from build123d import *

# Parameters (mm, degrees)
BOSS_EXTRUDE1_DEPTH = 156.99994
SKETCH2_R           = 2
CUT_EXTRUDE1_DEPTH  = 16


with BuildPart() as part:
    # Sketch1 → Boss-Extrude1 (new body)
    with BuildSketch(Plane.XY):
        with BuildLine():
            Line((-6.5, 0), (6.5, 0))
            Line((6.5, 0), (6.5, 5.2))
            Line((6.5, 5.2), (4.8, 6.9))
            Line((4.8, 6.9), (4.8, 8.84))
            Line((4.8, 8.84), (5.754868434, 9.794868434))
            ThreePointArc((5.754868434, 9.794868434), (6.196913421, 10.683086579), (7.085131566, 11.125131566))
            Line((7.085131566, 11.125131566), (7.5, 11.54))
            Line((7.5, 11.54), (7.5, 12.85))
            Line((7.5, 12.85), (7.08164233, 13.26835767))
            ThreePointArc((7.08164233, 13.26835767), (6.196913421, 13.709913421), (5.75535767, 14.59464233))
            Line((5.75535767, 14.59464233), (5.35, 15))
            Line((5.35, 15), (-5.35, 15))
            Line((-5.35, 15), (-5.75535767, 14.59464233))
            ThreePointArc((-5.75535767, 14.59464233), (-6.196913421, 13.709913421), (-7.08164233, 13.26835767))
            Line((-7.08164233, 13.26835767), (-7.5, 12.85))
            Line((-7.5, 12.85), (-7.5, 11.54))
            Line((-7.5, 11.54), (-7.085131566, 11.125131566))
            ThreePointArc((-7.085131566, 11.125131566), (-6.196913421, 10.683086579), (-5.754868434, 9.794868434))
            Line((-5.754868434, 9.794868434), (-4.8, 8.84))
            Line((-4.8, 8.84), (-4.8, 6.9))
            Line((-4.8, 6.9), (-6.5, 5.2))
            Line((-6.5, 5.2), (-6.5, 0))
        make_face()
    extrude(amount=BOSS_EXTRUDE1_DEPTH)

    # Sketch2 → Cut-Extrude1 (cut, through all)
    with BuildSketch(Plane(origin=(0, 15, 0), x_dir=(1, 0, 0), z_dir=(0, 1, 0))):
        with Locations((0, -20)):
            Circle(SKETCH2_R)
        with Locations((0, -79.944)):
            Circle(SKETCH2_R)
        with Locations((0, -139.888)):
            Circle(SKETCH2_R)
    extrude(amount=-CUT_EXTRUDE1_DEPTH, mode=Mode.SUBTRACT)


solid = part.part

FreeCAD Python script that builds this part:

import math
import FreeCAD as App
import Part
import Sketcher
Q = App.Units.Quantity

doc = App.newDocument("Part")
body = doc.addObject("PartDesign::Body", "Body")

sketch1 = body.newObject("Sketcher::SketchObject", "Sketch")
sketch1.AttachmentSupport = (doc.getObject("XY_Plane"), [""])
sketch1.MapMode = "FlatFace"
sketch1.addGeometry([
    Part.LineSegment(App.Vector(-6.5, 0, 0), App.Vector(6.5, 0, 0)),
    Part.LineSegment(App.Vector(6.5, 0, 0), App.Vector(6.5, 5.2, 0)),
    Part.LineSegment(App.Vector(6.5, 5.2, 0), App.Vector(4.8, 6.9, 0)),
    Part.LineSegment(App.Vector(4.8, 6.9, 0), App.Vector(4.8, 8.8, 0)),
    Part.LineSegment(App.Vector(4.8, 8.8, 0), App.Vector(5.8, 9.8, 0)),
    Part.ArcOfCircle(Part.Circle(App.Vector(7.3, 9.6, 0), App.Vector(0, 0, 1), 1.6), math.radians(98), math.radians(172)),
    Part.LineSegment(App.Vector(7.1, 11.1, 0), App.Vector(7.5, 11.5, 0)),
    Part.LineSegment(App.Vector(7.5, 11.5, 0), App.Vector(7.5, 12.8, 0)),
    Part.LineSegment(App.Vector(7.5, 12.8, 0), App.Vector(7.1, 13.3, 0)),
    Part.ArcOfCircle(Part.Circle(App.Vector(7.3, 14.8, 0), App.Vector(0, 0, 1), 1.6), math.radians(-172), math.radians(-98)),
    Part.LineSegment(App.Vector(5.8, 14.6, 0), App.Vector(5.3, 15, 0)),
    Part.LineSegment(App.Vector(5.3, 15, 0), App.Vector(-5.3, 15, 0)),
    Part.LineSegment(App.Vector(-5.3, 15, 0), App.Vector(-5.8, 14.6, 0)),
    Part.ArcOfCircle(Part.Circle(App.Vector(-7.3, 14.8, 0), App.Vector(0, 0, 1), 1.6), math.radians(-82), math.radians(-8)),
    Part.LineSegment(App.Vector(-7.1, 13.3, 0), App.Vector(-7.5, 12.8, 0)),
    Part.LineSegment(App.Vector(-7.5, 12.8, 0), App.Vector(-7.5, 11.5, 0)),
    Part.LineSegment(App.Vector(-7.5, 11.5, 0), App.Vector(-7.1, 11.1, 0)),
    Part.ArcOfCircle(Part.Circle(App.Vector(-7.3, 9.6, 0), App.Vector(0, 0, 1), 1.6), math.radians(8), math.radians(82)),
    Part.LineSegment(App.Vector(-5.8, 9.8, 0), App.Vector(-4.8, 8.8, 0)),
    Part.LineSegment(App.Vector(-4.8, 8.8, 0), App.Vector(-4.8, 6.9, 0)),
    Part.LineSegment(App.Vector(-4.8, 6.9, 0), App.Vector(-6.5, 5.2, 0)),
    Part.LineSegment(App.Vector(-6.5, 5.2, 0), App.Vector(-6.5, 0, 0)),
], False)
sketch1.addConstraint([
    Sketcher.Constraint("Coincident", 0, 2, 1, 1),
    Sketcher.Constraint("Coincident", 1, 2, 2, 1),
    Sketcher.Constraint("Coincident", 2, 2, 3, 1),
    Sketcher.Constraint("Coincident", 3, 2, 4, 1),
    Sketcher.Constraint("Coincident", 4, 2, 5, 2),
    Sketcher.Constraint("Coincident", 5, 1, 6, 1),
    Sketcher.Constraint("Coincident", 6, 2, 7, 1),
    Sketcher.Constraint("Coincident", 7, 2, 8, 1),
    Sketcher.Constraint("Coincident", 8, 2, 9, 2),
    Sketcher.Constraint("Coincident", 9, 1, 10, 1),
    Sketcher.Constraint("Coincident", 10, 2, 11, 1),
    Sketcher.Constraint("Coincident", 11, 2, 12, 1),
    Sketcher.Constraint("Coincident", 12, 2, 13, 2),
    Sketcher.Constraint("Coincident", 13, 1, 14, 1),
    Sketcher.Constraint("Coincident", 14, 2, 15, 1),
    Sketcher.Constraint("Coincident", 15, 2, 16, 1),
    Sketcher.Constraint("Coincident", 16, 2, 17, 2),
    Sketcher.Constraint("Coincident", 17, 1, 18, 1),
    Sketcher.Constraint("Coincident", 18, 2, 19, 1),
    Sketcher.Constraint("Coincident", 19, 2, 20, 1),
    Sketcher.Constraint("Coincident", 20, 2, 21, 1),
    Sketcher.Constraint("Coincident", 21, 2, 0, 1),
    Sketcher.Constraint("Horizontal", 0),
    Sketcher.Constraint("Vertical", 1),
    Sketcher.Constraint("Vertical", 3),
    Sketcher.Constraint("Vertical", 7),
    Sketcher.Constraint("Horizontal", 11),
    Sketcher.Constraint("Vertical", 15),
    Sketcher.Constraint("Vertical", 19),
    Sketcher.Constraint("Vertical", 21),
    Sketcher.Constraint("Equal", 5, 9),
    Sketcher.Constraint("Equal", 9, 13),
    Sketcher.Constraint("Equal", 13, 17),
    Sketcher.Constraint("Symmetric", 0, 2, 21, 2, -1, 1),
    Sketcher.Constraint("Symmetric", 9, 3, 13, 3, -2),
    Sketcher.Constraint("Symmetric", 5, 3, 17, 3, -2),
    Sketcher.Constraint("Symmetric", 7, 2, 14, 2, -2),
    Sketcher.Constraint("Symmetric", 3, 2, 18, 2, -2),
    Sketcher.Constraint("Perpendicular", 2, 4),
    Sketcher.Constraint("Parallel", 4, 6),
    Sketcher.Constraint("Perpendicular", 6, 8),
    Sketcher.Constraint("Parallel", 8, 10),
    Sketcher.Constraint("Perpendicular", 10, 12),
    Sketcher.Constraint("Parallel", 12, 14),
    Sketcher.Constraint("Perpendicular", 14, 16),
    Sketcher.Constraint("Parallel", 16, 18),
    Sketcher.Constraint("Perpendicular", 18, 20),
    Sketcher.Constraint("Horizontal", 9, 1, 12, 2),
    Sketcher.Constraint("Horizontal", 8, 2, 13, 1),
    Sketcher.Constraint("Horizontal", 6, 2, 15, 2),
    Sketcher.Constraint("Horizontal", 2, 2, 19, 2),
    Sketcher.Constraint("Vertical", 5, 3, 9, 3),
    Sketcher.Constraint("DistanceX", 0, 1, 0, 2, Q("13 mm")),
    Sketcher.Constraint("Radius", 5, Q("1.56 mm")),
    Sketcher.Constraint("DistanceX", 11, 2, 11, 1, Q("10.7 mm")),
    Sketcher.Constraint("DistanceY", 1, 1, 1, 2, Q("5.2 mm")),
    Sketcher.Constraint("DistanceY", -1, 1, 10, 2, Q("15 mm")),
    Sketcher.Constraint("DistanceY", 3, 1, 3, 2, Q("1.94 mm")),
    Sketcher.Constraint("DistanceY", 7, 1, 7, 2, Q("1.31 mm")),
    Sketcher.Constraint("DistanceX", -1, 1, 5, 3, Q("7.3 mm")),
    Sketcher.Constraint("DistanceX", -1, 1, 2, 2, Q("4.8 mm")),
    Sketcher.Constraint("DistanceX", -1, 1, 6, 2, Q("7.5 mm")),
    Sketcher.Constraint("DistanceY", 3, 2, 6, 2, Q("2.7 mm")),
    Sketcher.Constraint("DistanceY", -1, 1, 5, 3, Q("9.58 mm")),
    Sketcher.Constraint("DistanceY", -1, 1, 9, 3, Q("14.813 mm")),
])
pad1 = body.newObject("PartDesign::Pad", "Pad")
pad1.Profile = sketch1
pad1.Length = 156.99994

sketch2 = body.newObject("Sketcher::SketchObject", "Sketch001")
sketch2.AttachmentSupport = (doc.getObject("XZ_Plane"), [""])
sketch2.MapMode = "FlatFace"
sketch2.AttachmentOffset = App.Placement(App.Vector(0, 0, -15), App.Rotation())
sketch2.addGeometry([
    Part.Circle(App.Vector(0, 20, 0), App.Vector(0, 0, 1), 2),
    Part.Circle(App.Vector(0, 79.9, 0), App.Vector(0, 0, 1), 2),
    Part.Circle(App.Vector(0, 139.9, 0), App.Vector(0, 0, 1), 2),
], False)
sketch2.addConstraint([
    Sketcher.Constraint("Equal", 0, 1),
    Sketcher.Constraint("Equal", 1, 2),
    Sketcher.Constraint("PointOnObject", 0, 3, -2),
    Sketcher.Constraint("PointOnObject", 1, 3, -2),
    Sketcher.Constraint("PointOnObject", 2, 3, -2),
    Sketcher.Constraint("Diameter", 0, Q("4 mm")),
    Sketcher.Constraint("DistanceY", -1, 1, 0, 3, Q("20 mm")),
    Sketcher.Constraint("DistanceY", -1, 1, 1, 3, Q("79.944 mm")),
    Sketcher.Constraint("DistanceY", -1, 1, 2, 3, Q("139.888 mm")),
])
pocket1 = body.newObject("PartDesign::Pocket", "Pocket")
pocket1.Profile = sketch2
pocket1.Type = "ThroughAll"
pocket1.Reversed = True

doc.recompute()
